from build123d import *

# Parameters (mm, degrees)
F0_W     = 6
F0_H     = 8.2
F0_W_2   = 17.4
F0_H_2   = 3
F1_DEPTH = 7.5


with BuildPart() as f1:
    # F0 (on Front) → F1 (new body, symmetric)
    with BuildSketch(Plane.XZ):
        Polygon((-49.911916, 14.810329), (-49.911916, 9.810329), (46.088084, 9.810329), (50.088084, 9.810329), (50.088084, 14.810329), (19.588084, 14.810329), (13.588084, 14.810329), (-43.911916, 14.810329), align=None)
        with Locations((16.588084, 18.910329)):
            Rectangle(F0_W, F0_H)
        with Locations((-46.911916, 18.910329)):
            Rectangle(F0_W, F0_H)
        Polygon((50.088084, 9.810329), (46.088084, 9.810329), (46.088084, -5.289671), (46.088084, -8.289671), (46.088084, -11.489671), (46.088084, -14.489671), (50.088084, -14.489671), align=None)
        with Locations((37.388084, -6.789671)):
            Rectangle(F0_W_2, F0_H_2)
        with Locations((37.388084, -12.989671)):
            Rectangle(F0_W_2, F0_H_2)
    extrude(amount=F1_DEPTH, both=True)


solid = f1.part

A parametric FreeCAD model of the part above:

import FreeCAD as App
import Part
import Sketcher

V = App.Vector


def add_polygon(sketch, points):
    """Adds a closed chain of lines whose ends are joined by coincident constraints."""
    first, n = sketch.GeometryCount, len(points)
    for a, b in zip(points, points[1:] + points[:1]):
        sketch.addGeometry(Part.LineSegment(App.Vector(*a, 0), App.Vector(*b, 0)), False)
    for i in range(n):
        sketch.addConstraint(Sketcher.Constraint("Coincident", first + i, 2, first + (i + 1) % n, 1))

doc = App.newDocument("Part")
body = doc.addObject("PartDesign::Body", "Body")

# Sketch on XZ plane
sketch1 = body.newObject("Sketcher::SketchObject", "Sketch")
sketch1.AttachmentSupport = (doc.getObject("XZ_Plane"), [""])
sketch1.MapMode = "FlatFace"
add_polygon(sketch1, [(-49.9, 9.8), (46.1, 9.8), (46.1, -5.3), (28.7, -5.3), (28.7, -8.3), (46.1, -8.3), (46.1, -11.5), (28.7, -11.5), (28.7, -14.5), (50.1, -14.5), (50.1, 14.8), (19.6, 14.8), (19.6, 23), (13.6, 23), (13.6, 14.8), (-43.9, 14.8), (-43.9, 23), (-49.9, 23)])  # lines 0-17
sketch1.addConstraint(Sketcher.Constraint("Horizontal", 0))
sketch1.addConstraint(Sketcher.Constraint("Vertical", 1))
sketch1.addConstraint(Sketcher.Constraint("Horizontal", 2))
sketch1.addConstraint(Sketcher.Constraint("Vertical", 3))
sketch1.addConstraint(Sketcher.Constraint("Horizontal", 4))
sketch1.addConstraint(Sketcher.Constraint("Vertical", 5))
sketch1.addConstraint(Sketcher.Constraint("Horizontal", 6))
sketch1.addConstraint(Sketcher.Constraint("Vertical", 7))
sketch1.addConstraint(Sketcher.Constraint("Horizontal", 8))
sketch1.addConstraint(Sketcher.Constraint("Vertical", 9))
sketch1.addConstraint(Sketcher.Constraint("Horizontal", 10))
sketch1.addConstraint(Sketcher.Constraint("Vertical", 11))
sketch1.addConstraint(Sketcher.Constraint("Horizontal", 12))
sketch1.addConstraint(Sketcher.Constraint("Vertical", 13))
sketch1.addConstraint(Sketcher.Constraint("Horizontal", 14))
sketch1.addConstraint(Sketcher.Constraint("Vertical", 15))
sketch1.addConstraint(Sketcher.Constraint("Horizontal", 16))
sketch1.addConstraint(Sketcher.Constraint("Vertical", 17))
sketch1.addConstraint(Sketcher.Constraint("Horizontal", 10, 2, 13, 2))
sketch1.addConstraint(Sketcher.Constraint("Horizontal", 12, 2, 15, 2))
sketch1.addConstraint(Sketcher.Constraint("Vertical", 1, 2, 4, 2))
sketch1.addConstraint(Sketcher.Constraint("Vertical", 3, 2, 6, 2))
sketch1.addConstraint(Sketcher.Constraint("Equal", 12, 16))
sketch1.addConstraint(Sketcher.Constraint("Equal", 3, 7))
sketch1.addConstraint(Sketcher.Constraint("DistanceX", 0, 1, 0, 2, 96.0))
sketch1.addConstraint(Sketcher.Constraint("DistanceX", 12, 2, 12, 1, 6.0))
sketch1.addConstraint(Sketcher.Constraint("DistanceY", 3, 2, 3, 1, 3.0))
sketch1.addConstraint(Sketcher.Constraint("DistanceX", 2, 2, 2, 1, 17.4))
sketch1.addConstraint(Sketcher.Constraint("DistanceX", 8, 1, 8, 2, 21.4))
sketch1.addConstraint(Sketcher.Constraint("DistanceX", 10, 2, 10, 1, 30.5))
sketch1.addConstraint(Sketcher.Constraint("DistanceY", 1, 2, 1, 1, 15.1))
sketch1.addConstraint(Sketcher.Constraint("DistanceY", 5, 2, 5, 1, 3.2))
sketch1.addConstraint(Sketcher.Constraint("DistanceY", 9, 1, 9, 2, 29.3))
sketch1.addConstraint(Sketcher.Constraint("DistanceY", 11, 1, 11, 2, 8.2))
sketch1.addConstraint(Sketcher.Constraint("DistanceY", -1, 1, 0, 2, 9.810329))
sketch1.addConstraint(Sketcher.Constraint("DistanceX", -1, 1, 0, 2, 46.088084))
pad1 = body.newObject("PartDesign::Pad", "Pad")
pad1.Profile = sketch1
pad1.Length = 15
pad1.Midplane = True

doc.recompute()
